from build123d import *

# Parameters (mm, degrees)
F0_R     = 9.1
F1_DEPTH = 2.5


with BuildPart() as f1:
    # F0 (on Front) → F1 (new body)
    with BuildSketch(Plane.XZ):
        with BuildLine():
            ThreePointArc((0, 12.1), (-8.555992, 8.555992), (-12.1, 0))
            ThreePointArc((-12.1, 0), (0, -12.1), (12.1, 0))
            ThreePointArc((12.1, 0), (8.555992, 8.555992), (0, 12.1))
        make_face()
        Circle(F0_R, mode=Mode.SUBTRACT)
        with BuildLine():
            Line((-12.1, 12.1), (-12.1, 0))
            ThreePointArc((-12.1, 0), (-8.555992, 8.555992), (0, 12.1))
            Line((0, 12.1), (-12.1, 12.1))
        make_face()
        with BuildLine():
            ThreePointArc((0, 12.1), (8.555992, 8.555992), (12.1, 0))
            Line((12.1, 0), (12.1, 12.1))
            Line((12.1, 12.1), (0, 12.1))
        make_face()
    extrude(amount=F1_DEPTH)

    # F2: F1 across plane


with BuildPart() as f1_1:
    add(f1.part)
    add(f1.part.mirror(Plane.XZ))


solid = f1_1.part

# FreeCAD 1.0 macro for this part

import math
import FreeCAD as App
import Part
import Sketcher

doc = App.newDocument("Part")
body = doc.addObject("PartDesign::Body", "Body")

# Sketch on XZ plane
sketch1 = body.newObject("Sketcher::SketchObject", "Sketch")
sketch1.AttachmentSupport = (doc.getObject("XZ_Plane"), [""])
sketch1.MapMode = "FlatFace"
sketch1.addGeometry([
    Part.LineSegment(App.Vector(-12, 12, 0), App.Vector(-12, 0, 0)),  # 0
    Part.ArcOfCircle(Part.Circle(App.Vector(0, 0, 0), App.Vector(0, 0, 1), 12), math.radians(180), math.radians(360)),  # 1
    Part.LineSegment(App.Vector(12, 0, 0), App.Vector(12, 12, 0)),  # 2
    Part.LineSegment(App.Vector(12, 12, 0), App.Vector(-12, 12, 0)),  # 3
    Part.Circle(App.Vector(0, 0, 0), App.Vector(0, 0, 1), 9),  # 4
], False)
sketch1.addConstraint([
    Sketcher.Constraint("Tangent", 0, 2, 1, 1),
    Sketcher.Constraint("Tangent", 1, 2, 2, 1),
    Sketcher.Constraint("Coincident", 2, 2, 3, 1),
    Sketcher.Constraint("Coincident", 3, 2, 0, 1),
    Sketcher.Constraint("Vertical", 0),
    Sketcher.Constraint("Vertical", 2),
    Sketcher.Constraint("Horizontal", 3),
    Sketcher.Constraint("Coincident", 1, 3, -1, 1),
    Sketcher.Constraint("Coincident", 4, 3, -1, 1),
    Sketcher.Constraint("Diameter", 4, 18.2),
    Sketcher.Constraint("Radius", 1, 12.1),
    Sketcher.Constraint("DistanceY", 0, 2, 0, 1, 12.1),
])
pad1 = body.newObject("PartDesign::Pad", "Pad")
pad1.Profile = sketch1
pad1.Length = 2.5
body2 = doc.addObject("PartDesign::Body", "Body001")
doc.recompute()

body2.BaseFeature = body
doc.recompute()

mirroring = doc.addObject("Part::Mirroring", "Mirroring")
mirroring.Source = body
mirroring.Base = App.Vector(0, 0, 0)
mirroring.Normal = App.Vector(0, -1, 0)
body3 = doc.addObject("PartDesign::Body", "Body002")
body3.BaseFeature = mirroring
boolean = body2.newObject("PartDesign::Boolean", "Boolean")
boolean.Type = "Fuse"
boolean.addObjects([body3])
doc.recompute()
mirroring.Visibility = False

doc.recompute()
